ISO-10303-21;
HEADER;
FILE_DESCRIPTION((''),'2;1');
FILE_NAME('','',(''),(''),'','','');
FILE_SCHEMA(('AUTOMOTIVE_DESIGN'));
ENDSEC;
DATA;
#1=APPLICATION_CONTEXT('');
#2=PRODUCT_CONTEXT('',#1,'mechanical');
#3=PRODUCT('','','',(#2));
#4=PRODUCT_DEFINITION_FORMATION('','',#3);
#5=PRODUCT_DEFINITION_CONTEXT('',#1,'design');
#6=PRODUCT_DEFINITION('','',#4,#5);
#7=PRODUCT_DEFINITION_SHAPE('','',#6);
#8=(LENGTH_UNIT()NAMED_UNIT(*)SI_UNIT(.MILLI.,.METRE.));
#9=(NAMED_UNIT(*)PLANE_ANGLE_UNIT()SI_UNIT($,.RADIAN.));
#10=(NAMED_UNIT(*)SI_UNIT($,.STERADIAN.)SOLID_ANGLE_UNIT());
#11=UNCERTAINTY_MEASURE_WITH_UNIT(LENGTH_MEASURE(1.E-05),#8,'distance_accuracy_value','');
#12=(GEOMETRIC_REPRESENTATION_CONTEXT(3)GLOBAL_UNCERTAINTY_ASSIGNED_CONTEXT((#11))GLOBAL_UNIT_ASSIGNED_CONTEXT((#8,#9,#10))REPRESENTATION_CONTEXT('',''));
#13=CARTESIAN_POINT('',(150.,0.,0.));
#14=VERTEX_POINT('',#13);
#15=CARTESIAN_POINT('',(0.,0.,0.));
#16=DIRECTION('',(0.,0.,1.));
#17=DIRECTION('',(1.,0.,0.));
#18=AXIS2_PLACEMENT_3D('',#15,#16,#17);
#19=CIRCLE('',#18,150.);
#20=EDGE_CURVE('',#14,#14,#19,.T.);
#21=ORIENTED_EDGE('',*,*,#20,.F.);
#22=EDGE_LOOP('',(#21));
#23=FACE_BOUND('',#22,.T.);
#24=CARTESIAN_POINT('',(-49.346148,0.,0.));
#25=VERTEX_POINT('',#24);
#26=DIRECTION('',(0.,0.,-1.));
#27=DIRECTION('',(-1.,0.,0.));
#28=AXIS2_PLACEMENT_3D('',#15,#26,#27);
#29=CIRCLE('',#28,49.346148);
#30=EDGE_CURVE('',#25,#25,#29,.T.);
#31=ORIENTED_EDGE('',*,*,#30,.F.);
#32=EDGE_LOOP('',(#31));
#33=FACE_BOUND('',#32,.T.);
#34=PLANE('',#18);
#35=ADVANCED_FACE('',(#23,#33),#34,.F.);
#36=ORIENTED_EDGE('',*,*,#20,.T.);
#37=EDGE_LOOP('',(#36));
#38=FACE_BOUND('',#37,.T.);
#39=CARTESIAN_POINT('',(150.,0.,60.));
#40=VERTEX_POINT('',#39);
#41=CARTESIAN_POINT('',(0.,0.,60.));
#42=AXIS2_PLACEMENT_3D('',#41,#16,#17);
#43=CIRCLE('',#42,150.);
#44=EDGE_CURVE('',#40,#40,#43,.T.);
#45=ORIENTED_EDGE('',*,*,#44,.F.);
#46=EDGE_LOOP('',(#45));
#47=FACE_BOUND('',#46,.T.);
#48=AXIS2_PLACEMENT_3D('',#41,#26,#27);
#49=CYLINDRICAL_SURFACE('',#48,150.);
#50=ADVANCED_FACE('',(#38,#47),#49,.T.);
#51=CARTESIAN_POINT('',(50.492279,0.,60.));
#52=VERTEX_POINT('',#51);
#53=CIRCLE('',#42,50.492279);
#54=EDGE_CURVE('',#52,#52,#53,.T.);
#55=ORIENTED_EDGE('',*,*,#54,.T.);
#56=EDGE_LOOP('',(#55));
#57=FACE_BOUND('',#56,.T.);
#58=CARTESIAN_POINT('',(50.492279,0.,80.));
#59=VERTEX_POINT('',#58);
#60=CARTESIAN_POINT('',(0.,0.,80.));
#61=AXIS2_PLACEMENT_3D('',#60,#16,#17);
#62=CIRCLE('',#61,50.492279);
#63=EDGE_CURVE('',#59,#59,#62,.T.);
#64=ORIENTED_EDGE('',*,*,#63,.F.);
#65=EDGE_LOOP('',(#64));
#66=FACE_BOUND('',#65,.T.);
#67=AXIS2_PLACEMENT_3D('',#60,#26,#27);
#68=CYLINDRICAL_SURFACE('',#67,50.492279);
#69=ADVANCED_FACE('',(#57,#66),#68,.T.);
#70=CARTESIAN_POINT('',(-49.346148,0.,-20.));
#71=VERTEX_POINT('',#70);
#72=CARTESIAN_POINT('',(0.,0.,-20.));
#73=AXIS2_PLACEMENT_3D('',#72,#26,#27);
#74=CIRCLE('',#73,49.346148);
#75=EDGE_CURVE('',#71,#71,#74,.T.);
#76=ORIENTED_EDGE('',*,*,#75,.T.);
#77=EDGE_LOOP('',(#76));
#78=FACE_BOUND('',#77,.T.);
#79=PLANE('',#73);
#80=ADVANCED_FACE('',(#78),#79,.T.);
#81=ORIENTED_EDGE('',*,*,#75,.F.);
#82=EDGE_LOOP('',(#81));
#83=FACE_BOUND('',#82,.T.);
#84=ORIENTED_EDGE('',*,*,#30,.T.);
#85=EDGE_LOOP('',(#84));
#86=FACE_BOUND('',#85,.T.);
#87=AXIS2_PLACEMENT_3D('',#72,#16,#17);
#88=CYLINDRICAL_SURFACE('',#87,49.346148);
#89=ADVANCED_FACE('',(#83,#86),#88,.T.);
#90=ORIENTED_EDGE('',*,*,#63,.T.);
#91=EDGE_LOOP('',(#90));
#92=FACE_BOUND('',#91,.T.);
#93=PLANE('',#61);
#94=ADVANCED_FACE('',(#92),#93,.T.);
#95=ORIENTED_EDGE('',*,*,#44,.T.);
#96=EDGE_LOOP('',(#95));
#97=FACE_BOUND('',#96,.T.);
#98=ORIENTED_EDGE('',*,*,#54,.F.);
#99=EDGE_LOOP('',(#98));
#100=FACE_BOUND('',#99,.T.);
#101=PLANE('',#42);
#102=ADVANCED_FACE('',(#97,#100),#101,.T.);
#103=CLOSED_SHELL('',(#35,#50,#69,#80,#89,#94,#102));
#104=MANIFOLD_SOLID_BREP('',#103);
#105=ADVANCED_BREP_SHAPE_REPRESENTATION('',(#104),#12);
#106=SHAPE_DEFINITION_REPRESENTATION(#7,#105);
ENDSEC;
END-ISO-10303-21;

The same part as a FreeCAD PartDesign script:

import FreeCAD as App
import Part
import Sketcher
from FreeCAD import Vector
Q = App.Units.Quantity

doc = App.newDocument("Part")
body = doc.addObject("PartDesign::Body", "Body")

sketch1 = doc.addObject("Sketcher::SketchObject", "Sketch")
body.addObject(sketch1)
sketch1.AttachmentSupport = (doc.XY_Plane, [""])
sketch1.MapMode = "FlatFace"
sketch1.addGeometry(Part.Circle(Vector(0, 0, 0), Vector(0, 0, 1), 150), False)
sketch1.addConstraint([
    Sketcher.Constraint("Coincident", 0, 3, -1, 1),
    Sketcher.Constraint("Diameter", 0, Q("300 mm")),
])
pad1 = doc.addObject("PartDesign::Pad", "Pad")
body.addObject(pad1)
pad1.Profile = sketch1
pad1.Length = 60

sketch2 = doc.addObject("Sketcher::SketchObject", "Sketch001")
body.addObject(sketch2)
sketch2.AttachmentSupport = (doc.XY_Plane, [""])
sketch2.MapMode = "FlatFace"
sketch2.AttachmentOffset = App.Placement(Vector(0, 0, 60), App.Rotation())
sketch2.addGeometry(Part.Circle(Vector(0, 0, 0), Vector(0, 0, 1), 50.492279), False)
sketch2.addConstraint([
    Sketcher.Constraint("Coincident", 0, 3, -1, 1),
    Sketcher.Constraint("Diameter", 0, Q("100.984558 mm")),
])
pad2 = doc.addObject("PartDesign::Pad", "Pad001")
body.addObject(pad2)
pad2.Profile = sketch2
pad2.Length = 20

sketch3 = doc.addObject("Sketcher::SketchObject", "Sketch002")
body.addObject(sketch3)
sketch3.AttachmentSupport = (doc.XY_Plane, [""])
sketch3.MapMode = "FlatFace"
sketch3.addGeometry(Part.Circle(Vector(0, 0, 0), Vector(0, 0, 1), 49.346148), False)
sketch3.addConstraint([
    Sketcher.Constraint("Coincident", 0, 3, -1, 1),
    Sketcher.Constraint("Diameter", 0, Q("98.692297 mm")),
])
pad3 = doc.addObject("PartDesign::Pad", "Pad002")
body.addObject(pad3)
pad3.Profile = sketch3
pad3.Length = 20
pad3.Reversed = True

doc.recompute()
